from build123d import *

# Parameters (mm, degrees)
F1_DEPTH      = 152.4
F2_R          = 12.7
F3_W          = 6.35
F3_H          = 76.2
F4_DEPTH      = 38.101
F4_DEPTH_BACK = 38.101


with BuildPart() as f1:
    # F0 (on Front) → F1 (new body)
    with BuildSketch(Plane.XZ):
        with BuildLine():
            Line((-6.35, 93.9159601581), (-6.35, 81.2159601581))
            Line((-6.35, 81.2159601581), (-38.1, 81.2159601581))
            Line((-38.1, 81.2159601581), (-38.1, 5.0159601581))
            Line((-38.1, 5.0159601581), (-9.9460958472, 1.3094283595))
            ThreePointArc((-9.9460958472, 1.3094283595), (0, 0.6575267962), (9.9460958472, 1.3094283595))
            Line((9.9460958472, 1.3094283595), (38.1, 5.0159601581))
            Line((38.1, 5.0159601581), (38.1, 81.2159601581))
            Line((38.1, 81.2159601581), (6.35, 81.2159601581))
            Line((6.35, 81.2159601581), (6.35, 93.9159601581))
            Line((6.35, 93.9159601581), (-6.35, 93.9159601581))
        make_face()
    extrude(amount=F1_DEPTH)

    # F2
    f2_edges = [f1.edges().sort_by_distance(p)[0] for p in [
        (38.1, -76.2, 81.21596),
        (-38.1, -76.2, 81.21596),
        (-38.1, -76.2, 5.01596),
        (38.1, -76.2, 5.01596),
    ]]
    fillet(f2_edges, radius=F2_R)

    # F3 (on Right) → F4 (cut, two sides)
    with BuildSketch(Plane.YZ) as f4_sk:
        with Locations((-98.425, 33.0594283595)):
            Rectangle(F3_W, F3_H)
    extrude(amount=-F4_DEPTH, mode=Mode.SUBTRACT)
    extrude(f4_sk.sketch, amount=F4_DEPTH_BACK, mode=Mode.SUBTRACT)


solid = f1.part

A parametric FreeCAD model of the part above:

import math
import FreeCAD as App
import Part
import Sketcher
from FreeCAD import Vector
Q = App.Units.Quantity


def edges_at(feature, points):
    """Names of the edges that pass closest to the given points."""
    edges = feature.Shape.Edges
    near = lambda p: min(range(len(edges)), key=lambda i: edges[i].distToShape(Part.Vertex(*p))[0])
    return sorted({f"Edge{near(p) + 1}" for p in points})

doc = App.newDocument("Part")
body = doc.addObject("PartDesign::Body", "Body")

sketch1 = doc.addObject("Sketcher::SketchObject", "Sketch")
body.addObject(sketch1)
sketch1.AttachmentSupport = (doc.XZ_Plane, [""])
sketch1.MapMode = "FlatFace"
sketch1.addGeometry([
    Part.LineSegment(Vector(-6, 94, 0), Vector(-6, 81, 0)),
    Part.LineSegment(Vector(-6, 81, 0), Vector(-38, 81, 0)),
    Part.LineSegment(Vector(-38, 81, 0), Vector(-38, 5, 0)),
    Part.LineSegment(Vector(-38, 5, 0), Vector(-10, 1, 0)),
    Part.ArcOfCircle(Part.Circle(Vector(0, 77, 0), Vector(0, 0, 1), 76), math.radians(-97.5), math.radians(-82.5)),
    Part.LineSegment(Vector(10, 1, 0), Vector(38, 5, 0)),
    Part.LineSegment(Vector(38, 5, 0), Vector(38, 81, 0)),
    Part.LineSegment(Vector(38, 81, 0), Vector(6, 81, 0)),
    Part.LineSegment(Vector(6, 81, 0), Vector(6, 94, 0)),
    Part.LineSegment(Vector(6, 94, 0), Vector(-6, 94, 0)),
], False)
sketch1.addConstraint([
    Sketcher.Constraint("Coincident", 0, 2, 1, 1),
    Sketcher.Constraint("Coincident", 1, 2, 2, 1),
    Sketcher.Constraint("Coincident", 2, 2, 3, 1),
    Sketcher.Constraint("Tangent", 3, 2, 4, 1),
    Sketcher.Constraint("Tangent", 4, 2, 5, 1),
    Sketcher.Constraint("Coincident", 5, 2, 6, 1),
    Sketcher.Constraint("Coincident", 6, 2, 7, 1),
    Sketcher.Constraint("Coincident", 7, 2, 8, 1),
    Sketcher.Constraint("Coincident", 8, 2, 9, 1),
    Sketcher.Constraint("Coincident", 9, 2, 0, 1),
    Sketcher.Constraint("Vertical", 0),
    Sketcher.Constraint("Horizontal", 1),
    Sketcher.Constraint("Vertical", 2),
    Sketcher.Constraint("Vertical", 6),
    Sketcher.Constraint("Horizontal", 7),
    Sketcher.Constraint("Vertical", 8),
    Sketcher.Constraint("Horizontal", 9),
    Sketcher.Constraint("Symmetric", 3, 2, 4, 2, -2),
    Sketcher.Constraint("Symmetric", 1, 2, 6, 2, -2),
    Sketcher.Constraint("Equal", 1, 7),
    Sketcher.Constraint("Equal", 9, 0),
    Sketcher.Constraint("Radius", 4, Q("3 in")),
    Sketcher.Constraint("DistanceY", 2, 2, 2, 1, Q("3 in")),
    Sketcher.Constraint("DistanceX", 9, 2, 9, 1, Q("0.5 in")),
    Sketcher.Constraint("DistanceX", 2, 2, 5, 2, Q("3 in")),
    Sketcher.Constraint("Angle", 3, Q("-7.5 deg")),
    Sketcher.Constraint("DistanceY", -1, 1, 0, 2, Q("81.21596 mm")),
])
pad1 = doc.addObject("PartDesign::Pad", "Pad")
body.addObject(pad1)
pad1.Profile = sketch1
pad1.Length = Q("6 in")
doc.recompute()

fillet = doc.addObject("PartDesign::Fillet", "Fillet")
body.addObject(fillet)
fillet.Base = (pad1, edges_at(pad1, [
    (38.1, -76.2, 81.216),
    (-38.1, -76.2, 81.216),
    (-38.1, -76.2, 5.016),
    (38.1, -76.2, 5.016),
]))
fillet.Radius = Q("0.5 in")

sketch2 = doc.addObject("Sketcher::SketchObject", "Sketch001")
body.addObject(sketch2)
sketch2.AttachmentSupport = (doc.YZ_Plane, [""])
sketch2.MapMode = "FlatFace"
sketch2.addGeometry([
    Part.LineSegment(Vector(-102, 71, 0), Vector(-102, -5, 0)),
    Part.LineSegment(Vector(-102, -5, 0), Vector(-95, -5, 0)),
    Part.LineSegment(Vector(-95, -5, 0), Vector(-95, 71, 0)),
    Part.LineSegment(Vector(-95, 71, 0), Vector(-102, 71, 0)),
], False)
sketch2.addConstraint([
    Sketcher.Constraint("Coincident", 0, 2, 1, 1),
    Sketcher.Constraint("Coincident", 1, 2, 2, 1),
    Sketcher.Constraint("Coincident", 2, 2, 3, 1),
    Sketcher.Constraint("Coincident", 3, 2, 0, 1),
    Sketcher.Constraint("Vertical", 0),
    Sketcher.Constraint("Horizontal", 1),
    Sketcher.Constraint("Vertical", 2),
    Sketcher.Constraint("Horizontal", 3),
    Sketcher.Constraint("DistanceY", 0, 2, 0, 1, Q("3 in")),
    Sketcher.Constraint("DistanceX", 0, 2, -1, 1, Q("4 in")),
    Sketcher.Constraint("DistanceX", 1, 1, 1, 2, Q("0.25 in")),
    Sketcher.Constraint("DistanceY", 0, 2, -1, 1, Q("5.040572 mm")),
])
pocket1 = doc.addObject("PartDesign::Pocket", "Pocket")
body.addObject(pocket1)
pocket1.Profile = sketch2
pocket1.Type = "ThroughAll"
pocket1.Midplane = True

doc.recompute()
